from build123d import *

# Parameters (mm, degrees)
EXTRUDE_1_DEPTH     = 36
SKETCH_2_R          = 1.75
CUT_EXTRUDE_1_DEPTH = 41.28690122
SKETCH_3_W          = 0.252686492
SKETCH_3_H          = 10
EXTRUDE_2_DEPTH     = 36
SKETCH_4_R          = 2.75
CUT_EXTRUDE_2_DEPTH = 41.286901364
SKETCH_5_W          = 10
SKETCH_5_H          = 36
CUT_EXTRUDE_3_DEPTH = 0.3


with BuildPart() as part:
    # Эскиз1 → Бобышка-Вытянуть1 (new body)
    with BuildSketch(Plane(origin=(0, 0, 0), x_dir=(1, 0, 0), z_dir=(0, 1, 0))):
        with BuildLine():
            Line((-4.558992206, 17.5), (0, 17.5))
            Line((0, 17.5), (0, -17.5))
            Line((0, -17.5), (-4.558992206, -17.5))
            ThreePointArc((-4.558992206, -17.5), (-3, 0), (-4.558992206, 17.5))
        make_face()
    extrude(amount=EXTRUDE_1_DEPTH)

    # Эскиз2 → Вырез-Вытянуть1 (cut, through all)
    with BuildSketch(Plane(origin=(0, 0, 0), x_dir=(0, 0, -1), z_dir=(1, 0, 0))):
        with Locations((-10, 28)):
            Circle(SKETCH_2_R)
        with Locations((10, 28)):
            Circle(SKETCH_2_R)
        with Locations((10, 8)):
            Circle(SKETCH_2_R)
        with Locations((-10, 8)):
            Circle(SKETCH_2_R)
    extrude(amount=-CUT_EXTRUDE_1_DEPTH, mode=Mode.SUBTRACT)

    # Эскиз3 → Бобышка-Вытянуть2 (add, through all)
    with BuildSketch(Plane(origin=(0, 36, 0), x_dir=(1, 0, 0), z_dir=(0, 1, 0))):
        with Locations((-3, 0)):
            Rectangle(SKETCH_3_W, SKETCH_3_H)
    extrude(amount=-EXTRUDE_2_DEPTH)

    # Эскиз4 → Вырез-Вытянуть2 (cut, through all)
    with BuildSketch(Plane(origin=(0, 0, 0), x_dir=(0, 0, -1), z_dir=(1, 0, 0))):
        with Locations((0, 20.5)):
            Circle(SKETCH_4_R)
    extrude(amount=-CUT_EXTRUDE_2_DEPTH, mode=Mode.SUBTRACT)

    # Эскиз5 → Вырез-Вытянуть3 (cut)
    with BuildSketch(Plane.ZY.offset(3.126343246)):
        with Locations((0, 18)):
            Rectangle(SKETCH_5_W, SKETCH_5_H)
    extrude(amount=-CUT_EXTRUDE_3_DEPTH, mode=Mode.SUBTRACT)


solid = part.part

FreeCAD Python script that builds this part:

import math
import FreeCAD as App
import Part
import Sketcher
from FreeCAD import Vector

doc = App.newDocument("Part")
params = doc.addObject("Spreadsheet::Sheet", "Params")
for row, (alias, value) in enumerate([
    ("sketch1_radius", "99 mm"),
    ("sketch1_height", "35 mm"),
    ("pad1_length", "36 mm"),
    ("sketch2_diameter", "3.5 mm"),
    ("sketch3_height", "10 mm"),
    ("sketch4_diameter", "5.5 mm"),
    ("sketch5_width", "36 mm"),
    ("sketch5_height", "10 mm"),
    ("pocket3_length", "0.3 mm"),
], start=1):
    params.set(f"A{row}", alias)
    params.set(f"B{row}", "=" + value)
    params.setAlias(f"B{row}", alias)

body = doc.addObject("PartDesign::Body", "Body")

# Sketch on XZ plane
sketch1 = body.newObject("Sketcher::SketchObject", "Sketch")
sketch1.AttachmentSupport = (doc.getObject("XZ_Plane"), [""])
sketch1.MapMode = "FlatFace"
sketch1.addGeometry(Part.LineSegment(Vector(0, -17.5, 0), Vector(-4.558992, -17.5, 0)), False)
sketch1.addGeometry(Part.ArcOfCircle(Part.Circle(Vector(-102, 0, 0), Vector(0, 0, 1), 99), math.radians(-10.181542), math.radians(10.181542)), False)
sketch1.addGeometry(Part.LineSegment(Vector(-4.558992, 17.5, 0), Vector(0, 17.5, 0)), False)
sketch1.addGeometry(Part.LineSegment(Vector(0, 17.5, 0), Vector(0, -17.5, 0)), False)
sketch1.addConstraint(Sketcher.Constraint("Coincident", 0, 2, 1, 1))
sketch1.addConstraint(Sketcher.Constraint("Coincident", 1, 2, 2, 1))
sketch1.addConstraint(Sketcher.Constraint("Coincident", 2, 2, 3, 1))
sketch1.addConstraint(Sketcher.Constraint("Coincident", 3, 2, 0, 1))
sketch1.addConstraint(Sketcher.Constraint("Horizontal", 0))
sketch1.addConstraint(Sketcher.Constraint("Horizontal", 2))
sketch1.addConstraint(Sketcher.Constraint("Vertical", 3))
sketch1.addConstraint(Sketcher.Constraint("Symmetric", 2, 2, 3, 2, -1, 1))
sketch1.addConstraint(Sketcher.Constraint("PointOnObject", 1, 3, -1))
sketch1.addConstraint(Sketcher.Constraint("Radius", 1, 99.0))
sketch1.addConstraint(Sketcher.Constraint("DistanceY", 3, 2, 3, 1, 35.0))
sketch1.addConstraint(Sketcher.Constraint("DistanceX", 1, 3, -1, 1, 102.0))
sketch1.setExpression("Constraints[9]", "Params.sketch1_radius")
sketch1.setExpression("Constraints[10]", "Params.sketch1_height")
pad1 = body.newObject("PartDesign::Pad", "Pad")
pad1.Profile = sketch1
pad1.setExpression("Length", "Params.pad1_length")
pad1.Reversed = True

# Sketch on YZ plane
sketch2 = body.newObject("Sketcher::SketchObject", "Sketch001")
sketch2.AttachmentSupport = (doc.getObject("YZ_Plane"), [""])
sketch2.MapMode = "FlatFace"
sketch2.addGeometry(Part.Circle(Vector(28, 10, 0), Vector(0, 0, 1), 1.75), False)
sketch2.addGeometry(Part.Circle(Vector(28, -10, 0), Vector(0, 0, 1), 1.75), False)
sketch2.addGeometry(Part.Circle(Vector(8, -10, 0), Vector(0, 0, 1), 1.75), False)
sketch2.addGeometry(Part.Circle(Vector(8, 10, 0), Vector(0, 0, 1), 1.75), False)
sketch2.addConstraint(Sketcher.Constraint("Equal", 0, 1))
sketch2.addConstraint(Sketcher.Constraint("Equal", 1, 2))
sketch2.addConstraint(Sketcher.Constraint("Equal", 2, 3))
sketch2.addConstraint(Sketcher.Constraint("Symmetric", 0, 3, 1, 3, -1))
sketch2.addConstraint(Sketcher.Constraint("Symmetric", 2, 3, 3, 3, -1))
sketch2.addConstraint(Sketcher.Constraint("Horizontal", 1, 3, 2, 3))
sketch2.addConstraint(Sketcher.Constraint("Diameter", 0, 3.5))
sketch2.addConstraint(Sketcher.Constraint("DistanceX", -1, 1, 0, 3, 28.0))
sketch2.addConstraint(Sketcher.Constraint("DistanceY", -1, 1, 0, 3, 10.0))
sketch2.addConstraint(Sketcher.Constraint("DistanceX", -1, 1, 2, 3, 8.0))
sketch2.setExpression("Constraints[6]", "Params.sketch2_diameter")
pocket1 = body.newObject("PartDesign::Pocket", "Pocket")
pocket1.Profile = sketch2
pocket1.Type = "ThroughAll"

# Sketch on XZ plane
sketch3 = body.newObject("Sketcher::SketchObject", "Sketch002")
sketch3.AttachmentSupport = (doc.getObject("XZ_Plane"), [""])
sketch3.MapMode = "FlatFace"
sketch3.AttachmentOffset = App.Placement(Vector(0, 0, -36), App.Rotation())
sketch3.addGeometry(Part.LineSegment(Vector(-3.126343, -5, 0), Vector(-3.126343, 5, 0)), False)
sketch3.addGeometry(Part.LineSegment(Vector(-3.126343, 5, 0), Vector(-2.873657, 5, 0)), False)
sketch3.addGeometry(Part.LineSegment(Vector(-2.873657, 5, 0), Vector(-2.873657, -5, 0)), False)
sketch3.addGeometry(Part.LineSegment(Vector(-2.873657, -5, 0), Vector(-3.126343, -5, 0)), False)
sketch3.addConstraint(Sketcher.Constraint("Coincident", 0, 2, 1, 1))
sketch3.addConstraint(Sketcher.Constraint("Coincident", 1, 2, 2, 1))
sketch3.addConstraint(Sketcher.Constraint("Coincident", 2, 2, 3, 1))
sketch3.addConstraint(Sketcher.Constraint("Coincident", 3, 2, 0, 1))
sketch3.addConstraint(Sketcher.Constraint("Vertical", 0))
sketch3.addConstraint(Sketcher.Constraint("Horizontal", 1))
sketch3.addConstraint(Sketcher.Constraint("Vertical", 2))
sketch3.addConstraint(Sketcher.Constraint("Horizontal", 3))
sketch3.addConstraint(Sketcher.Constraint("DistanceY", 0, 1, 0, 2, 10.0))
sketch3.addConstraint(Sketcher.Constraint("DistanceY", -1, 1, 0, 2, 5.0))
sketch3.addConstraint(Sketcher.Constraint("DistanceX", 1, 1, 1, 2, 0.252686))
sketch3.addConstraint(Sketcher.Constraint("DistanceX", 0, 2, -1, 1, 3.126343))
sketch3.setExpression("Constraints[8]", "Params.sketch3_height")
pad2 = body.newObject("PartDesign::Pad", "Pad001")
pad2.Profile = sketch3
pad2.Type = "UpToLast"

# Sketch on YZ plane
sketch4 = body.newObject("Sketcher::SketchObject", "Sketch003")
sketch4.AttachmentSupport = (doc.getObject("YZ_Plane"), [""])
sketch4.MapMode = "FlatFace"
sketch4.addGeometry(Part.Circle(Vector(20.5, 0, 0), Vector(0, 0, 1), 2.75), False)
sketch4.addConstraint(Sketcher.Constraint("PointOnObject", 0, 3, -1))
sketch4.addConstraint(Sketcher.Constraint("Diameter", 0, 5.5))
sketch4.addConstraint(Sketcher.Constraint("DistanceX", -1, 1, 0, 3, 20.5))
sketch4.setExpression("Constraints[1]", "Params.sketch4_diameter")
pocket2 = body.newObject("PartDesign::Pocket", "Pocket001")
pocket2.Profile = sketch4
pocket2.Type = "ThroughAll"

# Sketch on YZ plane
sketch5 = body.newObject("Sketcher::SketchObject", "Sketch004")
sketch5.AttachmentSupport = (doc.getObject("YZ_Plane"), [""])
sketch5.MapMode = "FlatFace"
sketch5.AttachmentOffset = App.Placement(Vector(0, 0, -3.126343), App.Rotation())
sketch5.addGeometry(Part.LineSegment(Vector(36, -5, 0), Vector(0, -5, 0)), False)
sketch5.addGeometry(Part.LineSegment(Vector(0, -5, 0), Vector(0, 5, 0)), False)
sketch5.addGeometry(Part.LineSegment(Vector(0, 5, 0), Vector(36, 5, 0)), False)
sketch5.addGeometry(Part.LineSegment(Vector(36, 5, 0), Vector(36, -5, 0)), False)
sketch5.addConstraint(Sketcher.Constraint("Coincident", 0, 2, 1, 1))
sketch5.addConstraint(Sketcher.Constraint("Coincident", 1, 2, 2, 1))
sketch5.addConstraint(Sketcher.Constraint("Coincident", 2, 2, 3, 1))
sketch5.addConstraint(Sketcher.Constraint("Coincident", 3, 2, 0, 1))
sketch5.addConstraint(Sketcher.Constraint("Horizontal", 0))
sketch5.addConstraint(Sketcher.Constraint("Vertical", 1))
sketch5.addConstraint(Sketcher.Constraint("Horizontal", 2))
sketch5.addConstraint(Sketcher.Constraint("Vertical", 3))
sketch5.addConstraint(Sketcher.Constraint("Symmetric", 0, 2, 1, 2, -1, 1))
sketch5.addConstraint(Sketcher.Constraint("DistanceX", 0, 2, 0, 1, 36.0))
sketch5.addConstraint(Sketcher.Constraint("DistanceY", 1, 1, 1, 2, 10.0))
sketch5.setExpression("Constraints[9]", "Params.sketch5_width")
sketch5.setExpression("Constraints[10]", "Params.sketch5_height")
pocket3 = body.newObject("PartDesign::Pocket", "Pocket002")
pocket3.Profile = sketch5
pocket3.setExpression("Length", "Params.pocket3_length")
pocket3.Reversed = True

doc.recompute()
